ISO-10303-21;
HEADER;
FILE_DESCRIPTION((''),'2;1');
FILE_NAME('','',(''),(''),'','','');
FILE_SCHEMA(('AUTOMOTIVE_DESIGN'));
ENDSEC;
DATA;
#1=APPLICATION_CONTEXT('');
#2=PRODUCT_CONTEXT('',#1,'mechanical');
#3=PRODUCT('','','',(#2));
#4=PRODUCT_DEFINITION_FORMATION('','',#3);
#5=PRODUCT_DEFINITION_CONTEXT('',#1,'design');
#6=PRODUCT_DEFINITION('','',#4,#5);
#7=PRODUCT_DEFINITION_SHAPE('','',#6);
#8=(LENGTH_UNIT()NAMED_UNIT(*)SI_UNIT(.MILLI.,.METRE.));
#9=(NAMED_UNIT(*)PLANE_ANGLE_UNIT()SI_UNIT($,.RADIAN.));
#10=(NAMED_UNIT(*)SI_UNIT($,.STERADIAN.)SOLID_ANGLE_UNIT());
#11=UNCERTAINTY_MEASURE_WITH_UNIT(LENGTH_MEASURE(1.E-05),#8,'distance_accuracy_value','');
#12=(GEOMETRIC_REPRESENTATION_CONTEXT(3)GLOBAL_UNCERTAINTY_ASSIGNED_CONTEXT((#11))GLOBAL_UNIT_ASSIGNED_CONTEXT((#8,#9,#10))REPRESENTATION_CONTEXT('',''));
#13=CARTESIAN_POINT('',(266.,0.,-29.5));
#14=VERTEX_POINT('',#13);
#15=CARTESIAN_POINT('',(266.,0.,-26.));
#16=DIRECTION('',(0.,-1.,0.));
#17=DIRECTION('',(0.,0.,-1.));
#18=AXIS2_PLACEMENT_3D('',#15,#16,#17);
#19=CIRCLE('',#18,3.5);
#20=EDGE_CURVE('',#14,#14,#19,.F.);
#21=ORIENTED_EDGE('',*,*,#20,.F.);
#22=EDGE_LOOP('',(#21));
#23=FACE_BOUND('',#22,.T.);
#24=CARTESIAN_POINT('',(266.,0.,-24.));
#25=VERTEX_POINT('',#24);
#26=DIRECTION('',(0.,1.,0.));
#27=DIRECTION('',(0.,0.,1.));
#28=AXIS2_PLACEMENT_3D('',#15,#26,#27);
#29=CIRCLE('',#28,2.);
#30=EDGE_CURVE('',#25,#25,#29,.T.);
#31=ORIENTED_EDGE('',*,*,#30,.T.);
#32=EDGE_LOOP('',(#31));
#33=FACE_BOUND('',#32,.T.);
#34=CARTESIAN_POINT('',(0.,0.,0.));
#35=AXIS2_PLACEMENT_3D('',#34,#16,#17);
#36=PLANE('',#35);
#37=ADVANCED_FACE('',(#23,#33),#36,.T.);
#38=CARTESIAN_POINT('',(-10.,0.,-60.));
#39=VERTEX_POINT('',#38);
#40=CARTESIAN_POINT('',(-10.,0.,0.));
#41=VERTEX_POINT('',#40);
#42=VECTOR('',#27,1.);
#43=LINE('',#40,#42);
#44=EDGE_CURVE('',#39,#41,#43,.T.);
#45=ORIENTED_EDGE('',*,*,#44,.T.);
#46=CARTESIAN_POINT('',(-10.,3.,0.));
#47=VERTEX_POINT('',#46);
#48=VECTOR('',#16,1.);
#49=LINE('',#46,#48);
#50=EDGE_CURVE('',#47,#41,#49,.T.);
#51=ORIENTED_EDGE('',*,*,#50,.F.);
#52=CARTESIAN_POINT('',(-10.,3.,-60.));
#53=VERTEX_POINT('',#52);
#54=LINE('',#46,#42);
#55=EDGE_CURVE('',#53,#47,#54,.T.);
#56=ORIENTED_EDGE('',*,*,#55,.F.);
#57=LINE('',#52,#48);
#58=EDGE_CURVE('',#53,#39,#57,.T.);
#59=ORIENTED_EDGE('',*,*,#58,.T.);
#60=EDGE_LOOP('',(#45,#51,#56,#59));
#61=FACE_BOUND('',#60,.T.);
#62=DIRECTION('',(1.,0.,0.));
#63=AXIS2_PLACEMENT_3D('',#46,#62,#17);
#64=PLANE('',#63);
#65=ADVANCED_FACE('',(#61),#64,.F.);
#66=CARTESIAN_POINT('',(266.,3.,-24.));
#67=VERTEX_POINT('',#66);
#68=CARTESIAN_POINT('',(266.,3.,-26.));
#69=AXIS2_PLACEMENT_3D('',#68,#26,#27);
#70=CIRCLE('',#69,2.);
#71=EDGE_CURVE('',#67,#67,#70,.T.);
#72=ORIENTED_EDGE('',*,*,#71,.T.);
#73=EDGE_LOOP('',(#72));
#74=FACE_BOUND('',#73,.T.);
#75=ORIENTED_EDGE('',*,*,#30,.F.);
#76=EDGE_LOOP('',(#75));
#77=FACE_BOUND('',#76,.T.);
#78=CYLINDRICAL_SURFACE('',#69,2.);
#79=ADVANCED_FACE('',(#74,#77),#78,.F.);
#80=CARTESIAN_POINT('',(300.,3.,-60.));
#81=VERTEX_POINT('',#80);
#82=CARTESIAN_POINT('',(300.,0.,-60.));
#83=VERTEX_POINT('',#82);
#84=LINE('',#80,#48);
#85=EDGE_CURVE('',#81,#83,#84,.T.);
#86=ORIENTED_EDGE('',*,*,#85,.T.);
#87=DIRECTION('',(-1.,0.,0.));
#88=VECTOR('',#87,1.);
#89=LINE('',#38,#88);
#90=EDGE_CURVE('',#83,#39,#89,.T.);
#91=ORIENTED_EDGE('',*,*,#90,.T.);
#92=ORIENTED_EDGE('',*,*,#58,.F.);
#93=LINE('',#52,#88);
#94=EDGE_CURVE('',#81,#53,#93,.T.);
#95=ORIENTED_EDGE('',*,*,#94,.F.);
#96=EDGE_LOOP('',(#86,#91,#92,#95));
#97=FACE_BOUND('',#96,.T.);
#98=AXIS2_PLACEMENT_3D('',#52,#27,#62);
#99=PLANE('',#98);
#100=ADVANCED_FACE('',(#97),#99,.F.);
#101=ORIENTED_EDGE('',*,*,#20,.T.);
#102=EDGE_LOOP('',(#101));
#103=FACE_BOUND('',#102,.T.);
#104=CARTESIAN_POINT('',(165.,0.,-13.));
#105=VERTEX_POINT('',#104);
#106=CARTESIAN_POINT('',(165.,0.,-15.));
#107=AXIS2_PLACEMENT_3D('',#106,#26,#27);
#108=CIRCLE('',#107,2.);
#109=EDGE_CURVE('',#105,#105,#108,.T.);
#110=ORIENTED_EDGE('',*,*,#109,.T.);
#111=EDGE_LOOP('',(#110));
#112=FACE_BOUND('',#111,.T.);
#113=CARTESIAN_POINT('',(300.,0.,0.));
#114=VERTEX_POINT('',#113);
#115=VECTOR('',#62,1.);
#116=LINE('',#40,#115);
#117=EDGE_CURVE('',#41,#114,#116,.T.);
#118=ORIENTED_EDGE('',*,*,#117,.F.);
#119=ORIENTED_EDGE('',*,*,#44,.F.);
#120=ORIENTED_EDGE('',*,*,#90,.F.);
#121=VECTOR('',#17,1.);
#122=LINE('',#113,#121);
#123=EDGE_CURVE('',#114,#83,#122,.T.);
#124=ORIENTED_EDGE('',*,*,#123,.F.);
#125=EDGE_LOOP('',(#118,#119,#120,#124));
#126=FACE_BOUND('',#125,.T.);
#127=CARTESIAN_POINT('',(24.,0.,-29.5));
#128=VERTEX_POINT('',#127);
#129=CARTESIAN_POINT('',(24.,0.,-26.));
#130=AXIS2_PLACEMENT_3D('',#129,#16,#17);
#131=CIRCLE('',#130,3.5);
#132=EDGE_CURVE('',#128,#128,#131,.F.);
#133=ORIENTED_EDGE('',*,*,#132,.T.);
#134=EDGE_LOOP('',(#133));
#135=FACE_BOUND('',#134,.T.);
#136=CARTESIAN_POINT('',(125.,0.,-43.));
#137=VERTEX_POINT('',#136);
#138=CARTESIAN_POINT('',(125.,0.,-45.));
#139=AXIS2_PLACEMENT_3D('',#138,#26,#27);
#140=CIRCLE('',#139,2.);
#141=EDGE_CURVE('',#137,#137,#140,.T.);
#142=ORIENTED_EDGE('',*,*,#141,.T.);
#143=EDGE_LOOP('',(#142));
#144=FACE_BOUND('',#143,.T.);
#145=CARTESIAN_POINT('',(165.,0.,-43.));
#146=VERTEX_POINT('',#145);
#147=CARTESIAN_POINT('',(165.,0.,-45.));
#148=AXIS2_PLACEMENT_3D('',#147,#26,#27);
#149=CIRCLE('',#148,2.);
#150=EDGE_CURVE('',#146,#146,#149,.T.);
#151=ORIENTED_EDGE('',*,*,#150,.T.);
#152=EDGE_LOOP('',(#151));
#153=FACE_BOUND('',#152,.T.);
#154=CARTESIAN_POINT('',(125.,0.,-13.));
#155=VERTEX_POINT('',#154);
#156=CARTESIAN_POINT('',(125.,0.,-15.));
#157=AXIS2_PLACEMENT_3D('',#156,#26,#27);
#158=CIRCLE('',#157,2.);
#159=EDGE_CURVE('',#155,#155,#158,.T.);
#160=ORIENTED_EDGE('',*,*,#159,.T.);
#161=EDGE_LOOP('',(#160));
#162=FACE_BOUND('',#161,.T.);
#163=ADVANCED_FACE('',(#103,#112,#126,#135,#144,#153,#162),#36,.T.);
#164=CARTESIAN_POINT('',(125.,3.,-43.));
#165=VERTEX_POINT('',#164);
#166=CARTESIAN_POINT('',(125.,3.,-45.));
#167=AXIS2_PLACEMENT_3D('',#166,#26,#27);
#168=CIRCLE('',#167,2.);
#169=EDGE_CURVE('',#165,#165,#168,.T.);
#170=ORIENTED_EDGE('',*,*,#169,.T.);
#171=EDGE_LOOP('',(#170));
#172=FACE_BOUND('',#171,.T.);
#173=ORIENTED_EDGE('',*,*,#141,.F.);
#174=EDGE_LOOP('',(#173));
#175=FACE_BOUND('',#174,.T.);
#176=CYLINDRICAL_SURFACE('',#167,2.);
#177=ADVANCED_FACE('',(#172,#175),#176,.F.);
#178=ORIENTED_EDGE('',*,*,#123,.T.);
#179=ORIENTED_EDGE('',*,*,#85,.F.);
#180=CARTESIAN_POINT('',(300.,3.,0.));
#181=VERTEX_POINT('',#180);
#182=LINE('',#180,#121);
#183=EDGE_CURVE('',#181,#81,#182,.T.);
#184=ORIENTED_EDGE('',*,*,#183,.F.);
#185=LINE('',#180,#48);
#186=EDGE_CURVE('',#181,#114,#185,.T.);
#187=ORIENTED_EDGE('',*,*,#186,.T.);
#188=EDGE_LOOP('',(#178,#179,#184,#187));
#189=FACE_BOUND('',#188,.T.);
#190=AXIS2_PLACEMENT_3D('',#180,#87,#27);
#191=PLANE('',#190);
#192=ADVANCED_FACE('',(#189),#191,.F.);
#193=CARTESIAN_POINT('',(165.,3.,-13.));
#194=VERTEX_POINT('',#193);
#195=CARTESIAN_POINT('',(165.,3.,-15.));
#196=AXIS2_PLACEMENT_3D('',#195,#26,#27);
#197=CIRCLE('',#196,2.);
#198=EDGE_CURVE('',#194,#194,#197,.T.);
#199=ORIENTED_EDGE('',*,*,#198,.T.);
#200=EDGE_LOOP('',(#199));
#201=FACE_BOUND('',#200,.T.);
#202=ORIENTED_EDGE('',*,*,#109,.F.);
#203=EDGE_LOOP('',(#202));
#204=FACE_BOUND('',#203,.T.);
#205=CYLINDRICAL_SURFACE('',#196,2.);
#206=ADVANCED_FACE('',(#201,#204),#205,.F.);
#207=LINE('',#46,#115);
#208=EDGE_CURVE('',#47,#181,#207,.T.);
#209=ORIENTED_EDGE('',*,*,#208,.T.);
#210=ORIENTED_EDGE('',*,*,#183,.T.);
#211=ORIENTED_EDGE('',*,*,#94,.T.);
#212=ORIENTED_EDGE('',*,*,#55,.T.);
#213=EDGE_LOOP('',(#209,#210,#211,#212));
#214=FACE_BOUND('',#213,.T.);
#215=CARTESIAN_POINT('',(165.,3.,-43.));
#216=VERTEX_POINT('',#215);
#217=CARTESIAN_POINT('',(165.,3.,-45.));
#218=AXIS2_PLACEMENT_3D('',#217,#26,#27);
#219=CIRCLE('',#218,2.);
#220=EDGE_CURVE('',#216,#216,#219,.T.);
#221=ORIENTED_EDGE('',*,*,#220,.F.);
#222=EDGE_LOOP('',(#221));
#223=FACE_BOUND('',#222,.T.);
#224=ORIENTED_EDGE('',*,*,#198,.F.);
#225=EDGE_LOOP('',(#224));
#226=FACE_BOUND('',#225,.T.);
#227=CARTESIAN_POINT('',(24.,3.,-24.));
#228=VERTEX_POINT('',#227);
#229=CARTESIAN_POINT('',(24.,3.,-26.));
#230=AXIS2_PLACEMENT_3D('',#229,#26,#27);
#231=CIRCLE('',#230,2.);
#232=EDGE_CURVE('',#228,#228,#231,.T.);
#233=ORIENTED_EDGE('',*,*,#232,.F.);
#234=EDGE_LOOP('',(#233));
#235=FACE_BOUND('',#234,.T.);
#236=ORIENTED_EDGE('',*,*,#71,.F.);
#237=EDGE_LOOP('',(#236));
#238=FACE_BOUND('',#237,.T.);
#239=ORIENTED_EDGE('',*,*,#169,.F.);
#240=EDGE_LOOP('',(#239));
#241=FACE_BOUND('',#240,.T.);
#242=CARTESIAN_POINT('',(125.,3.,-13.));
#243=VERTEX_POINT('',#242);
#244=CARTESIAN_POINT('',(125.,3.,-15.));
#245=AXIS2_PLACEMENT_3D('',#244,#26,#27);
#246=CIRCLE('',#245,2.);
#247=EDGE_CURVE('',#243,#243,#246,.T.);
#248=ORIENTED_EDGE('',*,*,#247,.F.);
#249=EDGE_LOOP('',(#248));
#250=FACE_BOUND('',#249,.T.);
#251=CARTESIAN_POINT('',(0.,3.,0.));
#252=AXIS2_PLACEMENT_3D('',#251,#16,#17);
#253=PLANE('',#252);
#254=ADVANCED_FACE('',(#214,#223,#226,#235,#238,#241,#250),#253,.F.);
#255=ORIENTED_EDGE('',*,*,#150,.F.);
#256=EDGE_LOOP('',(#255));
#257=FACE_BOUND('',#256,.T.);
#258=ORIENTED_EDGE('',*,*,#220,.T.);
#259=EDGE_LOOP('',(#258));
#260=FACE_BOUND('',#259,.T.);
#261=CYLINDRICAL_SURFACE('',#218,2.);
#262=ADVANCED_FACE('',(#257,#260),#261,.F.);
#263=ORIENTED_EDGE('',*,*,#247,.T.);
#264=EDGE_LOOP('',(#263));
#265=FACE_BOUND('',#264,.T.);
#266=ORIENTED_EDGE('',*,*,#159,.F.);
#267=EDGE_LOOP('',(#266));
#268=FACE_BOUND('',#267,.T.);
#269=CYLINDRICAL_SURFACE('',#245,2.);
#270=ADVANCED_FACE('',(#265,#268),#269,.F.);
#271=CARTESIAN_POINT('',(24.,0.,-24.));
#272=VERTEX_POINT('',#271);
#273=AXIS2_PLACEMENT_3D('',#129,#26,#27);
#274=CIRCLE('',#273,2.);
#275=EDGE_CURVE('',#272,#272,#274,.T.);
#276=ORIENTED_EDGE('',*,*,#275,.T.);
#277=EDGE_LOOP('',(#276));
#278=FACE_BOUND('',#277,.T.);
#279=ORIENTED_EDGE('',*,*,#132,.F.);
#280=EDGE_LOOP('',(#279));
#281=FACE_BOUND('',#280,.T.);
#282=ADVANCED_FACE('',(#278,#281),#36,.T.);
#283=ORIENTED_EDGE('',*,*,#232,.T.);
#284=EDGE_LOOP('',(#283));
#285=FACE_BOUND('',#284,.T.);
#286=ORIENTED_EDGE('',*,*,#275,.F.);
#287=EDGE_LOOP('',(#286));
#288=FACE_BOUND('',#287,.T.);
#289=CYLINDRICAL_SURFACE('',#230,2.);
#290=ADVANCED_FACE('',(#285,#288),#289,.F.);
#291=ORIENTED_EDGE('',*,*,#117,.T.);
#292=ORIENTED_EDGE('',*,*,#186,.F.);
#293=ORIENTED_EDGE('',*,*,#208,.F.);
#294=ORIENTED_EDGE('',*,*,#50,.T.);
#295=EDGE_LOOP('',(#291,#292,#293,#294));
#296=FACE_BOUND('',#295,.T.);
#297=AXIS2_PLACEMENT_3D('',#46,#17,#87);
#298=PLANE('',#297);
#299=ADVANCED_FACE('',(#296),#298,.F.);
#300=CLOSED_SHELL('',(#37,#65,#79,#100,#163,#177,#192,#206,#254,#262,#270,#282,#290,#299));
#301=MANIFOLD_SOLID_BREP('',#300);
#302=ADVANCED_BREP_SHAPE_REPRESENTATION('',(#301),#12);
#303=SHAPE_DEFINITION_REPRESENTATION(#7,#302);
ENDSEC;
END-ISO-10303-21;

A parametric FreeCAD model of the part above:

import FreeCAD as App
import Part
import Sketcher
Q = App.Units.Quantity


def add_polygon(sketch, points):
    """Adds a closed chain of lines whose ends are joined by coincident constraints."""
    first, n = sketch.GeometryCount, len(points)
    for a, b in zip(points, points[1:] + points[:1]):
        sketch.addGeometry(Part.LineSegment(App.Vector(*a, 0), App.Vector(*b, 0)), False)
    for i in range(n):
        sketch.addConstraint(Sketcher.Constraint("Coincident", first + i, 2, first + (i + 1) % n, 1))

doc = App.newDocument("Part")
body = doc.addObject("PartDesign::Body", "Body")

# Sketch on XZ plane
sketch1 = doc.addObject("Sketcher::SketchObject", "Sketch")
body.addObject(sketch1)
sketch1.AttachmentSupport = (doc.XZ_Plane, [""])
sketch1.MapMode = "FlatFace"
add_polygon(sketch1, [(-10, -60), (-10, 0), (300, 0), (300, -60)])  # lines 0-3
sketch1.addConstraint([
    Sketcher.Constraint("Vertical", 0),
    Sketcher.Constraint("Horizontal", 1),
    Sketcher.Constraint("Vertical", 2),
    Sketcher.Constraint("Horizontal", 3),
    Sketcher.Constraint("PointOnObject", 0, 2, -1),
    Sketcher.Constraint("DistanceX", 1, 1, 1, 2, Q("310 mm")),
    Sketcher.Constraint("DistanceY", 0, 1, 0, 2, Q("60 mm")),
    Sketcher.Constraint("DistanceX", 0, 2, -1, 1, Q("10 mm")),
])
pad1 = doc.addObject("PartDesign::Pad", "Pad")
body.addObject(pad1)
pad1.Profile = sketch1
pad1.Length = 3
pad1.Reversed = True

# Sketch on XZ plane
sketch2 = doc.addObject("Sketcher::SketchObject", "Sketch001")
body.addObject(sketch2)
sketch2.AttachmentSupport = (doc.XZ_Plane, [""])
sketch2.MapMode = "FlatFace"
sketch2.AttachmentOffset = App.Placement(App.Vector(0, 0, -3), App.Rotation())
sketch2.addGeometry([
    Part.Circle(App.Vector(266, -26, 0), App.Vector(0, 0, 1), 2),  # 0
    Part.Circle(App.Vector(24, -26, 0), App.Vector(0, 0, 1), 2),  # 1
    Part.Circle(App.Vector(125, -15, 0), App.Vector(0, 0, 1), 2),  # 2
    Part.Circle(App.Vector(165, -15, 0), App.Vector(0, 0, 1), 2),  # 3
    Part.Circle(App.Vector(165, -45, 0), App.Vector(0, 0, 1), 2),  # 4
    Part.Circle(App.Vector(125, -45, 0), App.Vector(0, 0, 1), 2),  # 5
], False)
sketch2.addConstraint([
    Sketcher.Constraint("Equal", 0, 1),
    Sketcher.Constraint("Equal", 1, 2),
    Sketcher.Constraint("Equal", 2, 3),
    Sketcher.Constraint("Equal", 3, 4),
    Sketcher.Constraint("Equal", 4, 5),
    Sketcher.Constraint("Horizontal", 0, 3, 1, 3),
    Sketcher.Constraint("Horizontal", 2, 3, 3, 3),
    Sketcher.Constraint("Horizontal", 4, 3, 5, 3),
    Sketcher.Constraint("Vertical", 3, 3, 4, 3),
    Sketcher.Constraint("Vertical", 2, 3, 5, 3),
    Sketcher.Constraint("Diameter", 0, Q("4 mm")),
    Sketcher.Constraint("DistanceX", -1, 1, 0, 3, Q("266 mm")),
    Sketcher.Constraint("DistanceY", 0, 3, -1, 1, Q("26 mm")),
    Sketcher.Constraint("DistanceX", -1, 1, 1, 3, Q("24 mm")),
    Sketcher.Constraint("DistanceX", -1, 1, 2, 3, Q("125 mm")),
    Sketcher.Constraint("DistanceY", 2, 3, -1, 1, Q("15 mm")),
    Sketcher.Constraint("DistanceX", -1, 1, 3, 3, Q("165 mm")),
    Sketcher.Constraint("DistanceY", 4, 3, -1, 1, Q("45 mm")),
])
doc.recompute()
hole = doc.addObject("PartDesign::Hole", "Hole")
body.addObject(hole)
hole.Profile = sketch2
hole.ThreadType = "None"
hole.Diameter = 4
hole.DepthType = "ThroughAll"
hole.Reversed = True

doc.recompute()
